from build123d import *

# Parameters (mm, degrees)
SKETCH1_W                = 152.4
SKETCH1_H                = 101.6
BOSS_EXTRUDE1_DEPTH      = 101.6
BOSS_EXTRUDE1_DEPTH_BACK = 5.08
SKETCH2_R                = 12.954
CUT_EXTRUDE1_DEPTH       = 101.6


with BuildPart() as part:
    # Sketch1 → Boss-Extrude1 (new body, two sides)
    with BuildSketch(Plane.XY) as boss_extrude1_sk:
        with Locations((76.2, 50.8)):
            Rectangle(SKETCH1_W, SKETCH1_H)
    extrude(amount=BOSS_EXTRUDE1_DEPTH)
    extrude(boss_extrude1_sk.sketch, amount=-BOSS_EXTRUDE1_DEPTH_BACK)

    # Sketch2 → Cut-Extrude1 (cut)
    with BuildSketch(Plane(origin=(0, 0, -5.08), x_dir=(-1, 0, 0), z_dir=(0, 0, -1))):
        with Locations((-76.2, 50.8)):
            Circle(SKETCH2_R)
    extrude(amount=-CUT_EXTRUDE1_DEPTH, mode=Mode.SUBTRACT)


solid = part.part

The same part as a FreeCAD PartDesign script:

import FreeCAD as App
import Part
import Sketcher
Q = App.Units.Quantity


def add_polygon(sketch, points):
    """Adds a closed chain of lines whose ends are joined by coincident constraints."""
    first, n = sketch.GeometryCount, len(points)
    for a, b in zip(points, points[1:] + points[:1]):
        sketch.addGeometry(Part.LineSegment(App.Vector(*a, 0), App.Vector(*b, 0)), False)
    for i in range(n):
        sketch.addConstraint(Sketcher.Constraint("Coincident", first + i, 2, first + (i + 1) % n, 1))

doc = App.newDocument("Part")
body = doc.addObject("PartDesign::Body", "Body")

sketch1 = body.newObject("Sketcher::SketchObject", "Sketch")
sketch1.AttachmentSupport = (doc.getObject("XY_Plane"), [""])
sketch1.MapMode = "FlatFace"
add_polygon(sketch1, [(0, 102), (0, 0), (152, 0), (152, 102)])
sketch1.addConstraint([
    Sketcher.Constraint("Vertical", 0),
    Sketcher.Constraint("Horizontal", 1),
    Sketcher.Constraint("Vertical", 2),
    Sketcher.Constraint("Horizontal", 3),
    Sketcher.Constraint("Coincident", 0, 2, -1, 1),
    Sketcher.Constraint("DistanceX", 1, 1, 1, 2, Q("6 in")),
    Sketcher.Constraint("DistanceY", 0, 2, 0, 1, Q("4 in")),
])
pad1 = body.newObject("PartDesign::Pad", "Pad")
pad1.Profile = sketch1
pad1.Type = "TwoLengths"
pad1.Length = Q("4 in")
pad1.Length2 = Q("0.2 in")

sketch2 = body.newObject("Sketcher::SketchObject", "Sketch001")
sketch2.AttachmentSupport = (doc.getObject("XY_Plane"), [""])
sketch2.MapMode = "FlatFace"
sketch2.AttachmentOffset = App.Placement(App.Vector(0, 0, -0.2 * 25.4), App.Rotation())
sketch2.addGeometry(Part.Circle(App.Vector(76, 51, 0), App.Vector(0, 0, 1), 13), False)
sketch2.addConstraint([
    Sketcher.Constraint("Diameter", 0, Q("1.02 in")),
    Sketcher.Constraint("DistanceX", -1, 1, 0, 3, Q("3 in")),
    Sketcher.Constraint("DistanceY", -1, 1, 0, 3, Q("2 in")),
])
pocket1 = body.newObject("PartDesign::Pocket", "Pocket")
pocket1.Profile = sketch2
pocket1.Length = Q("4 in")
pocket1.Reversed = True

doc.recompute()
